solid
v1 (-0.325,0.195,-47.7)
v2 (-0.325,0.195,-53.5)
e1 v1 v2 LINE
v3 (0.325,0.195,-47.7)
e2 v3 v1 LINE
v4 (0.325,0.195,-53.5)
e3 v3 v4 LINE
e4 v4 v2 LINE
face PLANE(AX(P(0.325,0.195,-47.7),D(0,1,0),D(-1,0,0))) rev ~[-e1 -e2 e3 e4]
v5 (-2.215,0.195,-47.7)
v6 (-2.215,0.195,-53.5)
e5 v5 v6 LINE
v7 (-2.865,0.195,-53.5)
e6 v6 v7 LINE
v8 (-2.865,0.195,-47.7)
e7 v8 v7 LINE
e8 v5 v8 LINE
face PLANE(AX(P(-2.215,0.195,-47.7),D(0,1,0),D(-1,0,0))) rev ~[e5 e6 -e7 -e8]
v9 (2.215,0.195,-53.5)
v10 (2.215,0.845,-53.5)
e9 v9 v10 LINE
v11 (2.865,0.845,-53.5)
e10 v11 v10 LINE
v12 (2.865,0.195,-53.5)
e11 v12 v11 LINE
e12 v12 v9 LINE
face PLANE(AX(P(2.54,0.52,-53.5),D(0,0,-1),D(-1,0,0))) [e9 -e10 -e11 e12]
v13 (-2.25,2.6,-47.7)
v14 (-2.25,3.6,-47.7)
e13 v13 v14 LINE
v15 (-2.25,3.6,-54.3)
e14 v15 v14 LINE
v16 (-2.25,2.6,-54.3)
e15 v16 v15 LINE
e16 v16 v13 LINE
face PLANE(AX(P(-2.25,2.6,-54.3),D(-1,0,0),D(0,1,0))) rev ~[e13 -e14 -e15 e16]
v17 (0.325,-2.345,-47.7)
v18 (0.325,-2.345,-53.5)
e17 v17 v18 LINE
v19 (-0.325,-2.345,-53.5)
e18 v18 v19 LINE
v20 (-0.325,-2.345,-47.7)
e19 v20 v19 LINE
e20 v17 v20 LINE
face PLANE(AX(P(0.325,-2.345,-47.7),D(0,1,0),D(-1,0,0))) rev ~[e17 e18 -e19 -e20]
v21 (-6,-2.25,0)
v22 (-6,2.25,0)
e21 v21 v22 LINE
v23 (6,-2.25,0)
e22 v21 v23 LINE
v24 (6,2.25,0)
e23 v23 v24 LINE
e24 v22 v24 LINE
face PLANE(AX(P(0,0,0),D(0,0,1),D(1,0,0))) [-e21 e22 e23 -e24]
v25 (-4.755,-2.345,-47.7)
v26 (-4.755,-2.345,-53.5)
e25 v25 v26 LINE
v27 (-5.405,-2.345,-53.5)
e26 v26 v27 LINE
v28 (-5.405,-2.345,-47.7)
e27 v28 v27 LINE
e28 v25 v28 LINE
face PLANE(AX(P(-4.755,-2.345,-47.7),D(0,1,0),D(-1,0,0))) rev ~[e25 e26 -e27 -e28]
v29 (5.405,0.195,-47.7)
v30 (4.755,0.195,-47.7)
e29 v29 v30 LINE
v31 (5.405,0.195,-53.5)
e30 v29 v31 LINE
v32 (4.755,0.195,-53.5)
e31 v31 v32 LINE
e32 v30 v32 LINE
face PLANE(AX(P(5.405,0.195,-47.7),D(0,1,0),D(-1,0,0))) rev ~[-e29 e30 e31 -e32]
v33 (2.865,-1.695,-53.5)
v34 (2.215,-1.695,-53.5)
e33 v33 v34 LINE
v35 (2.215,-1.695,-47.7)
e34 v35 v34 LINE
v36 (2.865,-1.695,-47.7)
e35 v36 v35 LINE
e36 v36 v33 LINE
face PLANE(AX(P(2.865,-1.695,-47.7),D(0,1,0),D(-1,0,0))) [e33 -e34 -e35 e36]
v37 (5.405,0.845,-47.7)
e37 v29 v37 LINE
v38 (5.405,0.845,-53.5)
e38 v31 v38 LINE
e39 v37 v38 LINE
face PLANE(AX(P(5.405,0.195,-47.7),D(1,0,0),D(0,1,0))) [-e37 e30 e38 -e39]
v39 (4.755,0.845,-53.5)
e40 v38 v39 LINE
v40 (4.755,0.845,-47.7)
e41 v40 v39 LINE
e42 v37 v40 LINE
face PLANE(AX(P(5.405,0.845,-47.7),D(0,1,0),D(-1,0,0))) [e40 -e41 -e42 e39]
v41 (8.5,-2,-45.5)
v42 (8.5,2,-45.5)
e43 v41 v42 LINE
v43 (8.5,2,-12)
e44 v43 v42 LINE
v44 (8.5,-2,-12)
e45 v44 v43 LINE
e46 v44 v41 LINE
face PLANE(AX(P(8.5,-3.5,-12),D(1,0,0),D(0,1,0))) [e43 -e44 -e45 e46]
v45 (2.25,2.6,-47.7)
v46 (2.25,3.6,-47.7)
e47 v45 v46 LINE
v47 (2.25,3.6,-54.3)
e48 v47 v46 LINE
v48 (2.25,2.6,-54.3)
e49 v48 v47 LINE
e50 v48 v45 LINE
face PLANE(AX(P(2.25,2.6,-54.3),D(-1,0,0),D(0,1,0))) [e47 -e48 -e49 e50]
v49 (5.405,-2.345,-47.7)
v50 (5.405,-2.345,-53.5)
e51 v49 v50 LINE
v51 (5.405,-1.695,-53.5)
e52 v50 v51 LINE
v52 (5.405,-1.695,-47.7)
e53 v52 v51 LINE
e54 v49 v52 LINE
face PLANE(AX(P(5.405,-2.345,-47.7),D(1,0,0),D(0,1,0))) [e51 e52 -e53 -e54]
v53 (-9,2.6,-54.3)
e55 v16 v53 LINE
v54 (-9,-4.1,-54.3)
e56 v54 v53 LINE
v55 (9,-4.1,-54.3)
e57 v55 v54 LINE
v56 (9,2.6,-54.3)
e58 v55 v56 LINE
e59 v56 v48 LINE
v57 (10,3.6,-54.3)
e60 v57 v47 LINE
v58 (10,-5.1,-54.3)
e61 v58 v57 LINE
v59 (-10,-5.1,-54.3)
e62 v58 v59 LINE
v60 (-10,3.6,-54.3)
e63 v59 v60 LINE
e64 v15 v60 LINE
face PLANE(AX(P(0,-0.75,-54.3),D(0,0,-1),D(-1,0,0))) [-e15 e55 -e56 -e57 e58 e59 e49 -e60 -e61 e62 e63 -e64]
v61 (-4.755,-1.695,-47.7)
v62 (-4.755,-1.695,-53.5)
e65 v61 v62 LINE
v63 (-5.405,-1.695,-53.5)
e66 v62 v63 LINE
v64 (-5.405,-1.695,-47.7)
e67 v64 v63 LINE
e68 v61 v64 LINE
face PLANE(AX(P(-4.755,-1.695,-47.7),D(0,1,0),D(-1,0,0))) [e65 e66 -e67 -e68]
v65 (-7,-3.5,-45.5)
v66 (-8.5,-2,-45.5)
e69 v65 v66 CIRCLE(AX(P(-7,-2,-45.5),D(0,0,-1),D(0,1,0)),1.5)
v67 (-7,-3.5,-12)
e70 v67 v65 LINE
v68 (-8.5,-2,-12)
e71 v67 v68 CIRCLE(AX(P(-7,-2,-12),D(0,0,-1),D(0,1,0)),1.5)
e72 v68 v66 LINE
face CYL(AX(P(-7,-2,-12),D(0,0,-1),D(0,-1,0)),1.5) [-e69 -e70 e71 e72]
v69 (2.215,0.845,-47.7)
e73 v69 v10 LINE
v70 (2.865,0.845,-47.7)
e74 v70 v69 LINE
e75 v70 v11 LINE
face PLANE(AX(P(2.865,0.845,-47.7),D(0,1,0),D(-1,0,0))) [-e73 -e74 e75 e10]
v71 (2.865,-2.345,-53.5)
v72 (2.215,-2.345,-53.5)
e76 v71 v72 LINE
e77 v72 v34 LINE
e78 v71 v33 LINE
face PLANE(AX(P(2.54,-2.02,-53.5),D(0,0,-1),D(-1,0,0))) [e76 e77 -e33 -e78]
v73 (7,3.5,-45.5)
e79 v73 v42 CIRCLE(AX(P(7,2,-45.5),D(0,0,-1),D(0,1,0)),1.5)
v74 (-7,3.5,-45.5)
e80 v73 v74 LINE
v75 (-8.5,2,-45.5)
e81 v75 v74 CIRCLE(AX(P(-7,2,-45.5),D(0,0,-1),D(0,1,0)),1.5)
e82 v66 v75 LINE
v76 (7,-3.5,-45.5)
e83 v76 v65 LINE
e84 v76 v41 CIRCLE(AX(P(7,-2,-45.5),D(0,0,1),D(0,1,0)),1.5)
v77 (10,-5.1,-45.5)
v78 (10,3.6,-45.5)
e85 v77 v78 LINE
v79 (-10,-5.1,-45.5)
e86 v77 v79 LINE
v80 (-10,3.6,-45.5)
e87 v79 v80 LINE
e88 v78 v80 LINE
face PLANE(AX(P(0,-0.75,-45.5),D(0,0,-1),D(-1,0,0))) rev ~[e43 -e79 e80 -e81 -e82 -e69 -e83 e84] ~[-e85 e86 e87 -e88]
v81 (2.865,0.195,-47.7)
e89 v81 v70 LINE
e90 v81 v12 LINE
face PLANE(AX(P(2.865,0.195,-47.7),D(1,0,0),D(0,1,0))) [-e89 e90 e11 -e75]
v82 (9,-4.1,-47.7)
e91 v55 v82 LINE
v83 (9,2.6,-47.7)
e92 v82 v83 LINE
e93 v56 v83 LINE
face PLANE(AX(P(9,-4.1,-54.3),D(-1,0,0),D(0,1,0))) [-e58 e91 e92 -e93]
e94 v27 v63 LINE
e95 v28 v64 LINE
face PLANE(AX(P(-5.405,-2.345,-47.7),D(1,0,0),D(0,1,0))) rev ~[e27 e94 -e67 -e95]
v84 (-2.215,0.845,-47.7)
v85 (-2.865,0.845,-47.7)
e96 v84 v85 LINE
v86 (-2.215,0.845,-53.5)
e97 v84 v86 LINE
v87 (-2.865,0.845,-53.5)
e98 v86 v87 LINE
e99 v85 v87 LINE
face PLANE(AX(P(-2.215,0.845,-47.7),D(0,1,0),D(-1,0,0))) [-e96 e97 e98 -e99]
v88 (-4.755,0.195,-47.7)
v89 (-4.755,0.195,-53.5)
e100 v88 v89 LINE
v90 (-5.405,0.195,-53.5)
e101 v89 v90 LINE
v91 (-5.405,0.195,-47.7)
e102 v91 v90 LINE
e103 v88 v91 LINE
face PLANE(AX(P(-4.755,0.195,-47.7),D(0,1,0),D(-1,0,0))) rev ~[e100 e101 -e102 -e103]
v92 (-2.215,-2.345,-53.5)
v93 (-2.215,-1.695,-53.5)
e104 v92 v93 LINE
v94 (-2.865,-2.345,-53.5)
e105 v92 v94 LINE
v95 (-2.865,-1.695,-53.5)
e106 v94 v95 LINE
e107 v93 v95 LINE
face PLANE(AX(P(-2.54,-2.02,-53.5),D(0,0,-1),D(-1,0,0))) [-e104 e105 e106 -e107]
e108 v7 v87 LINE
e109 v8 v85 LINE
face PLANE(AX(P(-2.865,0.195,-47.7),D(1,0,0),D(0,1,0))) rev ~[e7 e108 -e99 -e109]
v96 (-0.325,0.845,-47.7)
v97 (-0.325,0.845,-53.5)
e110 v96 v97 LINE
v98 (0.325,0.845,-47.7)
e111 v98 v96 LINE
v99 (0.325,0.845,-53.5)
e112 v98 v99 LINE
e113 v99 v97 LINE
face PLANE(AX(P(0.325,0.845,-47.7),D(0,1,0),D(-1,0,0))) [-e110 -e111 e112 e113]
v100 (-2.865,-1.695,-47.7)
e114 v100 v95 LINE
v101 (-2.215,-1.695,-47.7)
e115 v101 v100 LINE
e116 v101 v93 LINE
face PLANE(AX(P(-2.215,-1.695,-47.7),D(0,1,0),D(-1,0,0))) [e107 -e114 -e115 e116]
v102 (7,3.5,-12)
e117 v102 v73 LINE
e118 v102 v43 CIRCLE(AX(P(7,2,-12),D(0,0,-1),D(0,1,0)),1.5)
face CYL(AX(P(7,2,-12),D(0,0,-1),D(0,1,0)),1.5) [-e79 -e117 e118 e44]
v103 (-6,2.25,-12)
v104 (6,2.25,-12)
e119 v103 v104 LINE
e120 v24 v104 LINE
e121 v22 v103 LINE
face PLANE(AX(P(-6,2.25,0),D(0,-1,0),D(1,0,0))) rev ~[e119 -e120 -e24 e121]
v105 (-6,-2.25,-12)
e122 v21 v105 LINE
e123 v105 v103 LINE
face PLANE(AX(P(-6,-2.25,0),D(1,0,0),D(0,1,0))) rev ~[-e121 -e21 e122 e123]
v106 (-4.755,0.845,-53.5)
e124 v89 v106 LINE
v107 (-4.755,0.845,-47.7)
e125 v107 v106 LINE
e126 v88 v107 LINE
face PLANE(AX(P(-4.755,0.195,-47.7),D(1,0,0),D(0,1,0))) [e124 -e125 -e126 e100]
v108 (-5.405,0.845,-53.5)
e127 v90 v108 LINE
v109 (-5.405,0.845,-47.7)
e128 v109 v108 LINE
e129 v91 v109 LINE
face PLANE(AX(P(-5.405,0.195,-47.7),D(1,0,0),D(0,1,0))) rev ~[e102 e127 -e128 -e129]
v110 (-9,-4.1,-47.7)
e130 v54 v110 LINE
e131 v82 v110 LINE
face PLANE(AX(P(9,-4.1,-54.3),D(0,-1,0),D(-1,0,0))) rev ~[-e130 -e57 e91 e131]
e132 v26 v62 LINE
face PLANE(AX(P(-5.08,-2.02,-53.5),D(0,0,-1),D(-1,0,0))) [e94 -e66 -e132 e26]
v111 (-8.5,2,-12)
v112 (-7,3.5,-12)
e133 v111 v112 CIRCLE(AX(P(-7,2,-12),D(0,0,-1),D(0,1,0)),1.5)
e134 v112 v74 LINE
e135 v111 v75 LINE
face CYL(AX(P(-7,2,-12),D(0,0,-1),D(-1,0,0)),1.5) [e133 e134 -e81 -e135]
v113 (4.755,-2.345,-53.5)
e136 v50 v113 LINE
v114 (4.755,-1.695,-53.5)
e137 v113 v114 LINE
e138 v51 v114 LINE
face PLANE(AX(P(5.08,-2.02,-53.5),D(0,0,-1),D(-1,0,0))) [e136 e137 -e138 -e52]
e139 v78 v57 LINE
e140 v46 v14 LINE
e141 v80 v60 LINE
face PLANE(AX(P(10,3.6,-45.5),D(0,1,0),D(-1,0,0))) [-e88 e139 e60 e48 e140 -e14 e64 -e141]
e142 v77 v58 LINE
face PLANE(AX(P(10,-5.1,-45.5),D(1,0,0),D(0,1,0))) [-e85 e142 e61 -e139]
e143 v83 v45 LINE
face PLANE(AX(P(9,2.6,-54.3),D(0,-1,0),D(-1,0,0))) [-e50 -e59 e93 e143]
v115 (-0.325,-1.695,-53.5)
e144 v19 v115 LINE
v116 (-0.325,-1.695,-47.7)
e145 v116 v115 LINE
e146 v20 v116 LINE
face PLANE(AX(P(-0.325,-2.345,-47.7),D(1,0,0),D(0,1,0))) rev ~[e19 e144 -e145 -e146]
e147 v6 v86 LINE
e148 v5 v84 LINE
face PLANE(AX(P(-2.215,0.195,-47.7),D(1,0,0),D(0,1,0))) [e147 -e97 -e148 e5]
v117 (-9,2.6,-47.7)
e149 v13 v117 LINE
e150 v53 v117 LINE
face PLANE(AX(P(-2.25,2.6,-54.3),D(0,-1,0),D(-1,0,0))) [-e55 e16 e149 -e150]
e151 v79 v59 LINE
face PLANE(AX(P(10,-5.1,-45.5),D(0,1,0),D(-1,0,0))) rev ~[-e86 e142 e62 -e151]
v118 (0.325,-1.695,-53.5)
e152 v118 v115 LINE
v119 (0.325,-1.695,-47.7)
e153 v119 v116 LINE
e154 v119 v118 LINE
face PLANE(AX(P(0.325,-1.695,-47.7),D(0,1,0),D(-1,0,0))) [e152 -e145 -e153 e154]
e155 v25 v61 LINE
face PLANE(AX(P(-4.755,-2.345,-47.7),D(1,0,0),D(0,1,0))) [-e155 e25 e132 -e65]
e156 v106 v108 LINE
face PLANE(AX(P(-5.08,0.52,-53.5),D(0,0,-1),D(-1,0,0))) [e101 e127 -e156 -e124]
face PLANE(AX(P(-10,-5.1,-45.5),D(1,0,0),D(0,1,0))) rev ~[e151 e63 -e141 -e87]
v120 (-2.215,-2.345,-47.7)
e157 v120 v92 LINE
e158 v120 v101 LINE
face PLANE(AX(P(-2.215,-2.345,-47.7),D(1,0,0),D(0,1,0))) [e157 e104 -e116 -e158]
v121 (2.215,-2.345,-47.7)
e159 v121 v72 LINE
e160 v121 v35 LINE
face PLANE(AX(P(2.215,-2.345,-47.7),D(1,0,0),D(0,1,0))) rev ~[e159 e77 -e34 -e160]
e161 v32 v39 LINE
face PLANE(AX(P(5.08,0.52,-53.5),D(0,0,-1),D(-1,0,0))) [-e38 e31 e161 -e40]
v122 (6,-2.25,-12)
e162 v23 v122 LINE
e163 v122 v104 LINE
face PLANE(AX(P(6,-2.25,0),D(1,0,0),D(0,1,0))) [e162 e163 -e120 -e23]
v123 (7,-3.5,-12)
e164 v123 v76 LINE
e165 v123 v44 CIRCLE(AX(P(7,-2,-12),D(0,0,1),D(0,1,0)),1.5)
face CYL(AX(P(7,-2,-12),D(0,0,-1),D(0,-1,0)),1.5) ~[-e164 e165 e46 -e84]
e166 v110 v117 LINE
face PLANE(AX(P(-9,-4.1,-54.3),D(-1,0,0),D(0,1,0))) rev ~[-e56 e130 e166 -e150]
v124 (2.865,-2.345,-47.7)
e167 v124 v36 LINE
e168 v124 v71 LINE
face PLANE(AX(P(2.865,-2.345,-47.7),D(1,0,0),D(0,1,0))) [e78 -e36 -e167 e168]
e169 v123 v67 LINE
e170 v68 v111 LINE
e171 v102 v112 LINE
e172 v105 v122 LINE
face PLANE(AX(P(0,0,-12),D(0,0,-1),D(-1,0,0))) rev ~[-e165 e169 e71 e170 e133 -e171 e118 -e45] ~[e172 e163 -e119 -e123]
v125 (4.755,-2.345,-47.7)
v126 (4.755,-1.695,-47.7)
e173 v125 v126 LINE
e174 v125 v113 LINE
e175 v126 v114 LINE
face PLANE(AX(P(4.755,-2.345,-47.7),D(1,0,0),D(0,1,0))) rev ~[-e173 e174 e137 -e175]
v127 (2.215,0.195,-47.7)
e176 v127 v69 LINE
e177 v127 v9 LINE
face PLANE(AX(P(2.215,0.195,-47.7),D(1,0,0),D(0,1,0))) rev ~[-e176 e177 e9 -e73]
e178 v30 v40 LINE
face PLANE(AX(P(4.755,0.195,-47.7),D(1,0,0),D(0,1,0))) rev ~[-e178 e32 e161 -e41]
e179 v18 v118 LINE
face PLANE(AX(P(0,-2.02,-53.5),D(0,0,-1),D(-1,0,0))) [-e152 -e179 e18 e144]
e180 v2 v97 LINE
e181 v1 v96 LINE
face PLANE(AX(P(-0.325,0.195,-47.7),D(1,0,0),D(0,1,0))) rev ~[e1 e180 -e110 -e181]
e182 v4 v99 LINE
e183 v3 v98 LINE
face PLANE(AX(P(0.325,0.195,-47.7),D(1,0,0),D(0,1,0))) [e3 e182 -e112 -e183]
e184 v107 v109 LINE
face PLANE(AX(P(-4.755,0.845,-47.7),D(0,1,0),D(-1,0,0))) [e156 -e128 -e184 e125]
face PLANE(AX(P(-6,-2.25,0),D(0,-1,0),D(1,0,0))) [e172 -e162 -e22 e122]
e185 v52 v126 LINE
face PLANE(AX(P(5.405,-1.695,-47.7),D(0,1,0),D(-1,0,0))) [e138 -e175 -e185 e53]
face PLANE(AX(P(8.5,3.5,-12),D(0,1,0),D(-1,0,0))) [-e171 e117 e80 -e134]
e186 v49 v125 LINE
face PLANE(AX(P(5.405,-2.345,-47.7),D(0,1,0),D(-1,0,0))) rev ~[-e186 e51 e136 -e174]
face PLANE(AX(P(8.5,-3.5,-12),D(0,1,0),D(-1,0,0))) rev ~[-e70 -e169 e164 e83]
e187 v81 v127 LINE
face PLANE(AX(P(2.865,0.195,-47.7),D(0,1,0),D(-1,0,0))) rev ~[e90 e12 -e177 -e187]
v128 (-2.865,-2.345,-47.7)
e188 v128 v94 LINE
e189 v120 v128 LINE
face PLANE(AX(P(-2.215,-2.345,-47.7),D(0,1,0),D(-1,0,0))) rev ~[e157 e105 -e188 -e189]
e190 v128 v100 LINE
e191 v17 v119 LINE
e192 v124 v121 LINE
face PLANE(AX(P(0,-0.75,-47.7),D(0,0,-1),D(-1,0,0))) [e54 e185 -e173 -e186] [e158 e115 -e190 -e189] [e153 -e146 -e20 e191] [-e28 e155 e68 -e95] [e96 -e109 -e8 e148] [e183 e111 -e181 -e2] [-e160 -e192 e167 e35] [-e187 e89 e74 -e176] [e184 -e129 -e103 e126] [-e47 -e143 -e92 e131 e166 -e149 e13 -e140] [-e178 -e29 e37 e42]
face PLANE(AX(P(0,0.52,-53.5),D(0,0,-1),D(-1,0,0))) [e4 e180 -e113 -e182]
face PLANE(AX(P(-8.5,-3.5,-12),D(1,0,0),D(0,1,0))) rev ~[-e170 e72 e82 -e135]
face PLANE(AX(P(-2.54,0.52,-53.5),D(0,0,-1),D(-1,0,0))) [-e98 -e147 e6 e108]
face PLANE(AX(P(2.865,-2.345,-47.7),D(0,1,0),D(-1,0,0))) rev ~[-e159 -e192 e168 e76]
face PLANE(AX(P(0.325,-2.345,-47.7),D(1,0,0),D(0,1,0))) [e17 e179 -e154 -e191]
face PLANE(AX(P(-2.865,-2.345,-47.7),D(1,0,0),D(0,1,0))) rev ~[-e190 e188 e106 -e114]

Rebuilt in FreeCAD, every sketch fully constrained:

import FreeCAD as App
import Part
import Sketcher


def edges_at(feature, points):
    """Names of the edges that pass closest to the given points."""
    edges = feature.Shape.Edges
    near = lambda p: min(range(len(edges)), key=lambda i: edges[i].distToShape(Part.Vertex(*p))[0])
    return sorted({f"Edge{near(p) + 1}" for p in points})


def add_polygon(sketch, points):
    """Adds a closed chain of lines whose ends are joined by coincident constraints."""
    first, n = sketch.GeometryCount, len(points)
    for a, b in zip(points, points[1:] + points[:1]):
        sketch.addGeometry(Part.LineSegment(App.Vector(*a, 0), App.Vector(*b, 0)), False)
    for i in range(n):
        sketch.addConstraint(Sketcher.Constraint("Coincident", first + i, 2, first + (i + 1) % n, 1))

doc = App.newDocument("Part")
body = doc.addObject("PartDesign::Body", "Body")

sketch1 = body.newObject("Sketcher::SketchObject", "Sketch")
sketch1.AttachmentSupport = (doc.getObject("XY_Plane"), [""])
sketch1.MapMode = "FlatFace"
add_polygon(sketch1, [(-6, 2.25), (-6, -2.25), (6, -2.25), (6, 2.25)])
sketch1.addConstraint([
    Sketcher.Constraint("Vertical", 0),
    Sketcher.Constraint("Horizontal", 1),
    Sketcher.Constraint("Vertical", 2),
    Sketcher.Constraint("Horizontal", 3),
    Sketcher.Constraint("Symmetric", 0, 2, 2, 2, -1, 1),
    Sketcher.Constraint("DistanceX", 1, 1, 1, 2, 12.0),
    Sketcher.Constraint("DistanceY", 0, 2, 0, 1, 4.5),
])
pad1 = body.newObject("PartDesign::Pad", "Pad")
pad1.Profile = sketch1
pad1.Length = 12
pad1.Reversed = True

sketch2 = body.newObject("Sketcher::SketchObject", "Sketch001")
sketch2.AttachmentSupport = (doc.getObject("XY_Plane"), [""])
sketch2.MapMode = "FlatFace"
sketch2.AttachmentOffset = App.Placement(App.Vector(0, 0, -12), App.Rotation())
add_polygon(sketch2, [(8.5, 3.5), (8.5, -3.5), (-8.5, -3.5), (-8.5, 3.5)])
sketch2.addConstraint([
    Sketcher.Constraint("Vertical", 0),
    Sketcher.Constraint("Horizontal", 1),
    Sketcher.Constraint("Vertical", 2),
    Sketcher.Constraint("Horizontal", 3),
    Sketcher.Constraint("Symmetric", 0, 2, 2, 2, -1, 1),
    Sketcher.Constraint("DistanceX", 1, 2, 1, 1, 17.0),
    Sketcher.Constraint("DistanceY", 0, 2, 0, 1, 7.0),
])
pad2 = body.newObject("PartDesign::Pad", "Pad001")
pad2.Profile = sketch2
pad2.Length = 33.5
pad2.Reversed = True

sketch3 = body.newObject("Sketcher::SketchObject", "Sketch002")
sketch3.AttachmentSupport = (doc.getObject("XY_Plane"), [""])
sketch3.MapMode = "FlatFace"
sketch3.AttachmentOffset = App.Placement(App.Vector(0, 0, -45.5), App.Rotation())
add_polygon(sketch3, [(10, 3.6), (10, -5.1), (-10, -5.1), (-10, 3.6)])
sketch3.addConstraint([
    Sketcher.Constraint("Vertical", 0),
    Sketcher.Constraint("Horizontal", 1),
    Sketcher.Constraint("Vertical", 2),
    Sketcher.Constraint("Horizontal", 3),
    Sketcher.Constraint("DistanceX", 1, 2, 1, 1, 20.0),
    Sketcher.Constraint("DistanceY", 0, 2, 0, 1, 8.7),
    Sketcher.Constraint("DistanceX", -1, 1, 0, 2, 10.0),
    Sketcher.Constraint("DistanceY", 0, 2, -1, 1, 5.1),
])
pad3 = body.newObject("PartDesign::Pad", "Pad002")
pad3.Profile = sketch3
pad3.Length = 8.8
pad3.Reversed = True

sketch4 = body.newObject("Sketcher::SketchObject", "Sketch003")
sketch4.AttachmentSupport = (doc.getObject("XY_Plane"), [""])
sketch4.MapMode = "FlatFace"
sketch4.AttachmentOffset = App.Placement(App.Vector(0, 0, -54.3), App.Rotation())
add_polygon(sketch4, [(9, 2.6), (9, -4.1), (-9, -4.1), (-9, 2.6), (-2.25, 2.6), (-2.25, 3.6), (2.25, 3.6), (2.25, 2.6)])
sketch4.addConstraint([
    Sketcher.Constraint("Vertical", 0),
    Sketcher.Constraint("Horizontal", 1),
    Sketcher.Constraint("Vertical", 2),
    Sketcher.Constraint("Horizontal", 3),
    Sketcher.Constraint("Vertical", 4),
    Sketcher.Constraint("Horizontal", 5),
    Sketcher.Constraint("Vertical", 6),
    Sketcher.Constraint("Horizontal", 7),
    Sketcher.Constraint("Symmetric", 3, 2, 6, 2, -2),
    Sketcher.Constraint("Equal", 3, 7),
    Sketcher.Constraint("DistanceX", 1, 2, 1, 1, 18.0),
    Sketcher.Constraint("DistanceY", 4, 1, 4, 2, 1.0),
    Sketcher.Constraint("DistanceX", 5, 1, 5, 2, 4.5),
    Sketcher.Constraint("DistanceY", 0, 2, 0, 1, 6.7),
    Sketcher.Constraint("DistanceY", 0, 2, -1, 1, 4.1),
])
pocket1 = body.newObject("PartDesign::Pocket", "Pocket")
pocket1.Profile = sketch4
pocket1.Length = 6.6
pocket1.Reversed = True

sketch5 = body.newObject("Sketcher::SketchObject", "Sketch004")
sketch5.AttachmentSupport = (doc.getObject("XY_Plane"), [""])
sketch5.MapMode = "FlatFace"
sketch5.AttachmentOffset = App.Placement(App.Vector(0, 0, -47.7), App.Rotation())
add_polygon(sketch5, [(0.325, 0.845), (0.325, 0.195), (-0.325, 0.195), (-0.325, 0.845)])
add_polygon(sketch5, [(0.325, -1.695), (0.325, -2.345), (-0.325, -2.345), (-0.325, -1.695)])
sketch5.addConstraint([
    Sketcher.Constraint("Vertical", 0),
    Sketcher.Constraint("Horizontal", 1),
    Sketcher.Constraint("Vertical", 2),
    Sketcher.Constraint("Horizontal", 3),
    Sketcher.Constraint("Vertical", 4),
    Sketcher.Constraint("Horizontal", 5),
    Sketcher.Constraint("Vertical", 6),
    Sketcher.Constraint("Horizontal", 7),
    Sketcher.Constraint("Vertical", 3, 2, 4, 2),
    Sketcher.Constraint("Vertical", 2, 2, 5, 2),
    Sketcher.Constraint("Equal", 7, 0),
    Sketcher.Constraint("Equal", 2, 4),
    Sketcher.Constraint("DistanceX", 1, 2, 1, 1, 0.65),
    Sketcher.Constraint("DistanceY", 4, 2, 0, 2, 2.54),
    Sketcher.Constraint("DistanceX", -1, 1, 0, 2, 0.325),
    Sketcher.Constraint("DistanceY", -1, 1, 0, 2, 0.195),
])
pad4 = body.newObject("PartDesign::Pad", "Pad003")
pad4.Profile = sketch5
pad4.Length = 5.8
pad4.Reversed = True
doc.recompute()

linearpattern = body.newObject("PartDesign::LinearPattern", "LinearPattern")
linearpattern.Originals = [pad4]
linearpattern.Direction = (doc.getObject("X_Axis"), [""])
linearpattern.Mode = "offset"
linearpattern.Offset = 2.54
linearpattern.Occurrences = 3
body.Tip = linearpattern
doc.recompute()

linearpattern2 = body.newObject("PartDesign::LinearPattern", "LinearPattern001")
linearpattern2.Originals = [pad4]
linearpattern2.Direction = (doc.getObject("X_Axis"), [""])
linearpattern2.Mode = "offset"
linearpattern2.Offset = 2.54
linearpattern2.Occurrences = 3
linearpattern2.Reversed = True
body.Tip = linearpattern2
doc.recompute()

fillet = body.newObject("PartDesign::Fillet", "Fillet")
fillet.Base = (linearpattern2, edges_at(linearpattern2, [
    (8.5, 3.5, -28.75),
    (8.5, -3.5, -28.75),
    (-8.5, -3.5, -28.75),
    (-8.5, 3.5, -28.75),
]))
fillet.Radius = 1.5

doc.recompute()
